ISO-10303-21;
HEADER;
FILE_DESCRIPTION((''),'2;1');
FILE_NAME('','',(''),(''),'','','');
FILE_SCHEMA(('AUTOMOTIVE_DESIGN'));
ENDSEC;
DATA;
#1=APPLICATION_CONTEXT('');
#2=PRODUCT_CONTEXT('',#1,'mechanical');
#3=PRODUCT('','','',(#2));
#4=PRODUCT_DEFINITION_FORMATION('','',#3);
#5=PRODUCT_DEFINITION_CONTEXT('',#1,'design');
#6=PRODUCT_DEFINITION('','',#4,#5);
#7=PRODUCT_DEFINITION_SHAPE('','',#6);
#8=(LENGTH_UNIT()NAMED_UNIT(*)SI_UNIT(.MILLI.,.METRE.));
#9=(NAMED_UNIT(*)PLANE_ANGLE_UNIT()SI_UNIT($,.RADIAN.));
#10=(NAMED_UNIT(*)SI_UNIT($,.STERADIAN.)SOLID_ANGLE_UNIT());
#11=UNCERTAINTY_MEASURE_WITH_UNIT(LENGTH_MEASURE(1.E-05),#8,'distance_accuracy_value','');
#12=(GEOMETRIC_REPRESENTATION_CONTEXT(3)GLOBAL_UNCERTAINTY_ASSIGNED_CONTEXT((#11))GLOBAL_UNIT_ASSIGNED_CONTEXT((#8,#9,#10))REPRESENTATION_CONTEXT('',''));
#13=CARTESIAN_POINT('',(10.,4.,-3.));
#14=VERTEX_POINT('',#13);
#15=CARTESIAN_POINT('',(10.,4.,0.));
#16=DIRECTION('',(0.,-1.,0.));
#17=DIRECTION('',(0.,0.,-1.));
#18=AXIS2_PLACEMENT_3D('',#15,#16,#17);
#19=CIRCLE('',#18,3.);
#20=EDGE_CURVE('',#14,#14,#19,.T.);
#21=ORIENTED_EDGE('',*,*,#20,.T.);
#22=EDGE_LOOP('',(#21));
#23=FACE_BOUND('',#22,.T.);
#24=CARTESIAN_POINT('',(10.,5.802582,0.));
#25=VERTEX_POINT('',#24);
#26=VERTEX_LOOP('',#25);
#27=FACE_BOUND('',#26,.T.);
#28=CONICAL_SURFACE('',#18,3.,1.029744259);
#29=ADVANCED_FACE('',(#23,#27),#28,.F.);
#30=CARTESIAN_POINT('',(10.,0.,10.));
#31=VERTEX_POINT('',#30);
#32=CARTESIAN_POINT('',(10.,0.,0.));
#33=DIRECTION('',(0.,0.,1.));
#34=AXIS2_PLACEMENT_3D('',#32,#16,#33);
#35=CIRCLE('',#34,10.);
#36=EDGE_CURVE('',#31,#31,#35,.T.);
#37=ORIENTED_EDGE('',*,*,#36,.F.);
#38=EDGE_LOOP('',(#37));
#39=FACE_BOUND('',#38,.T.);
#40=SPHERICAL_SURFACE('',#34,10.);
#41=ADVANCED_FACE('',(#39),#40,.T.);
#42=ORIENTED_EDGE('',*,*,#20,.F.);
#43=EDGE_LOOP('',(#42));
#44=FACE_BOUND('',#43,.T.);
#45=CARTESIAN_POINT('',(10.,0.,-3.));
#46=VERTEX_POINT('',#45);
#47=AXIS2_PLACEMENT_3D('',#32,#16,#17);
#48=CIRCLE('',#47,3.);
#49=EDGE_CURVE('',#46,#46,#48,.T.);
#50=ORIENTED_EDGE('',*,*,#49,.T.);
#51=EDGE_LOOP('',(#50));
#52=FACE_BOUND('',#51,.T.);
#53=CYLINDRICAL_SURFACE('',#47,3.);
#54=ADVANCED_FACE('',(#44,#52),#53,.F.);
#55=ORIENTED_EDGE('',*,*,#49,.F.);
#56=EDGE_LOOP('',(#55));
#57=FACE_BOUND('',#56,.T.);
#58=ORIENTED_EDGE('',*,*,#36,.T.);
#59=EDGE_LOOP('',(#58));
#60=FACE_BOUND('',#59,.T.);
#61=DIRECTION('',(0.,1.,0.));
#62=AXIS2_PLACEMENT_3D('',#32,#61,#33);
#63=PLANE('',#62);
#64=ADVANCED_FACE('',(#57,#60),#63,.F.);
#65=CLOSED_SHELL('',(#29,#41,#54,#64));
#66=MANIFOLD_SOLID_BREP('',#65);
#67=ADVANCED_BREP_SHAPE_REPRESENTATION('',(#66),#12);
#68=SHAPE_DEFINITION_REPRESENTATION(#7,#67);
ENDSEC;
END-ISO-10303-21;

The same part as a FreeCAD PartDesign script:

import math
import FreeCAD as App
import Part
import Sketcher

V = App.Vector

doc = App.newDocument("Part")
params = doc.addObject("Spreadsheet::Sheet", "Params")
for row, (alias, value) in enumerate([
    ("sketch1_radius", "10 mm"),
    ("revolution_angle", "180 deg"),
    ("sketch2_diameter", "6 mm"),
    ("hole_diameter", "6 mm"),
    ("hole_depth", "4 mm"),
], start=1):
    params.set(f"A{row}", alias)
    params.set(f"B{row}", "=" + value)
    params.setAlias(f"B{row}", alias)

body = doc.addObject("PartDesign::Body", "Body")

sketch1 = doc.addObject("Sketcher::SketchObject", "Sketch")
body.addObject(sketch1)
sketch1.AttachmentSupport = (doc.XZ_Plane, [""])
sketch1.MapMode = "FlatFace"
sketch1.addGeometry([
    Part.LineSegment(V(0, 0, 0), V(20, 0, 0)),
    Part.ArcOfCircle(Part.Circle(V(10, 0, 0), V(0, 0, 1), 10), math.radians(180), math.radians(360)),
], False)
sketch1.addConstraint([
    Sketcher.Constraint("Coincident", 0, 1, 1, 1),
    Sketcher.Constraint("Coincident", 1, 2, 0, 2),
    Sketcher.Constraint("Horizontal", 0),
    Sketcher.Constraint("Coincident", 0, 1, -1, 1),
    Sketcher.Constraint("PointOnObject", 1, 3, -1),
    Sketcher.Constraint("Radius", 1, 10.0),
])
sketch1.setExpression("Constraints[5]", "Params.sketch1_radius")
revolution = doc.addObject("PartDesign::Revolution", "Revolution")
body.addObject(revolution)
revolution.Profile = sketch1
revolution.ReferenceAxis = (sketch1, ["H_Axis"])
revolution.setExpression("Angle", "Params.revolution_angle")

sketch2 = doc.addObject("Sketcher::SketchObject", "Sketch001")
body.addObject(sketch2)
sketch2.AttachmentSupport = (doc.XZ_Plane, [""])
sketch2.MapMode = "FlatFace"
sketch2.addGeometry(Part.Circle(V(10, 0, 0), V(0, 0, 1), 3), False)
sketch2.addConstraint([
    Sketcher.Constraint("PointOnObject", 0, 3, -1),
    Sketcher.Constraint("Diameter", 0, 6.0),
    Sketcher.Constraint("DistanceX", -1, 1, 0, 3, 10.0),
])
sketch2.setExpression("Constraints[1]", "Params.sketch2_diameter")
doc.recompute()
hole = doc.addObject("PartDesign::Hole", "Hole")
body.addObject(hole)
hole.Profile = sketch2
hole.ThreadType = "None"
hole.setExpression("Diameter", "Params.hole_diameter")
hole.DepthType = "Dimension"
hole.setExpression("Depth", "Params.hole_depth")
hole.DrillPoint = "Angled"
hole.DrillPointAngle = 118

doc.recompute()
